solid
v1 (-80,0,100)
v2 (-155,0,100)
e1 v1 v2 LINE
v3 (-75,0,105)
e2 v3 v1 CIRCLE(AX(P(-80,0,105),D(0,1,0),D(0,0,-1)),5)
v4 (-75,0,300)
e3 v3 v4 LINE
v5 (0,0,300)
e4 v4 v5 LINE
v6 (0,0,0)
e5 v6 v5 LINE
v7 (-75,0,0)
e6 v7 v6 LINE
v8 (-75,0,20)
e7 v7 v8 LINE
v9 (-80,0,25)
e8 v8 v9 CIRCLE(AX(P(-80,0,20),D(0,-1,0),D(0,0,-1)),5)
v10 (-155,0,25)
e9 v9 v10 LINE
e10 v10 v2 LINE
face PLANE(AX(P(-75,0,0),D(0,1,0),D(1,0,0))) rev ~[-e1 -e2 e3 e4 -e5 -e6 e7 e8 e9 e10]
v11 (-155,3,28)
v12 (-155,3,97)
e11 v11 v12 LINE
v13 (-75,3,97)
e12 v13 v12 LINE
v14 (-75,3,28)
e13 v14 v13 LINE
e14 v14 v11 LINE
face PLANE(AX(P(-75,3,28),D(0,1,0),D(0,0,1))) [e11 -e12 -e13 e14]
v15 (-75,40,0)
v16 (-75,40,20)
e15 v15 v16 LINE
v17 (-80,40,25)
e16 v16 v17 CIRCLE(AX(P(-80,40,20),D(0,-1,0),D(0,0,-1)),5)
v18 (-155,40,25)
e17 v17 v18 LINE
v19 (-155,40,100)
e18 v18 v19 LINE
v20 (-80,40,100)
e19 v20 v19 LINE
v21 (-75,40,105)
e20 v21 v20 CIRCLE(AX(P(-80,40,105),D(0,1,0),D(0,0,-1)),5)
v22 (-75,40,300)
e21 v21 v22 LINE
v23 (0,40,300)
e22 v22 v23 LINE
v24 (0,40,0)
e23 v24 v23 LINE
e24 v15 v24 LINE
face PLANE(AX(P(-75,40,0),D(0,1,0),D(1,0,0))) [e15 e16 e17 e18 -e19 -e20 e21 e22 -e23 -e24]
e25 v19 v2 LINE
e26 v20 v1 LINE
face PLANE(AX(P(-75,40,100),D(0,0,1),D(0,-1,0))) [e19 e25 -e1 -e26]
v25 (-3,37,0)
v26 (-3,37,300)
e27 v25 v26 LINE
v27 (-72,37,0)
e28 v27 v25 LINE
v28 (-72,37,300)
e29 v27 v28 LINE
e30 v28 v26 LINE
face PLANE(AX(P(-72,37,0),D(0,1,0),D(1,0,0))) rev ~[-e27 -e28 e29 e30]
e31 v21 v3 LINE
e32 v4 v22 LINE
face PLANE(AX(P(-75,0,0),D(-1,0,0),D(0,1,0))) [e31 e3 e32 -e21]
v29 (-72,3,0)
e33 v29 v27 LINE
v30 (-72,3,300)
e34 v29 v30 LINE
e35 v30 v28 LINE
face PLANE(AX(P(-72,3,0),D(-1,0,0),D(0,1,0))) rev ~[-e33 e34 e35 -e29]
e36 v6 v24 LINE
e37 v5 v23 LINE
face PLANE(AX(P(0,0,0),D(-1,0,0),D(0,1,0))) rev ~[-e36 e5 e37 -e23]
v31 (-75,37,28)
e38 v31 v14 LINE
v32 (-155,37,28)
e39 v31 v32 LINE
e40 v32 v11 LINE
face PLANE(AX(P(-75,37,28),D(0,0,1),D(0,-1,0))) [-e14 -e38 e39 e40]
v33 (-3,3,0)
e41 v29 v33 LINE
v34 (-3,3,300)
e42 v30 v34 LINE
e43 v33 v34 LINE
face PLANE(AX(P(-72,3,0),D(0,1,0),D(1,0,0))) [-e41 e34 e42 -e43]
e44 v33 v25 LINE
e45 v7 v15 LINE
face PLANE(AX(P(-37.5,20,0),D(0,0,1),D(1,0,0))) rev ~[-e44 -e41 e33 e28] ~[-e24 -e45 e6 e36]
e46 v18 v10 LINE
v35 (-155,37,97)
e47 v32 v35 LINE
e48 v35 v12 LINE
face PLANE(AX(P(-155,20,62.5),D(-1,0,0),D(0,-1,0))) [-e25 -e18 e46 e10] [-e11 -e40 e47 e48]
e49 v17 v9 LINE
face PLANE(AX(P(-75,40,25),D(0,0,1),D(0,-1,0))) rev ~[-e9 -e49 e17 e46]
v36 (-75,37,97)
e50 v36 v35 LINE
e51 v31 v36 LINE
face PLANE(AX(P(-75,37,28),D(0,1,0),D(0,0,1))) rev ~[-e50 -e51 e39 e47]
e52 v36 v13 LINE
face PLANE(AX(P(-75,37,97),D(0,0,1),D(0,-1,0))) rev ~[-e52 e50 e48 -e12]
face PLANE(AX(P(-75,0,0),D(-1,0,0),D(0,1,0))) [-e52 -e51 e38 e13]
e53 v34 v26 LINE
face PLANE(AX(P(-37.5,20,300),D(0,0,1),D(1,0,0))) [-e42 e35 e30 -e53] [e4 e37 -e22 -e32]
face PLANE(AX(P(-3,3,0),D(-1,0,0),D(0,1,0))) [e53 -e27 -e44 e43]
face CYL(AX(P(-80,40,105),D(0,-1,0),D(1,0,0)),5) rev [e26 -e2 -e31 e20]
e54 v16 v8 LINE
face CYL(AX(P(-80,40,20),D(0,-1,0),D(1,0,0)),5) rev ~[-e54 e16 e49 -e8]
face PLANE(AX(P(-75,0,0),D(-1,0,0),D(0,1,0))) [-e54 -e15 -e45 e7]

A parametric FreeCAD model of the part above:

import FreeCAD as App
import Part
import Sketcher

V = App.Vector


def edges_at(feature, points):
    """Names of the edges that pass closest to the given points."""
    edges = feature.Shape.Edges
    near = lambda p: min(range(len(edges)), key=lambda i: edges[i].distToShape(Part.Vertex(*p))[0])
    return sorted({f"Edge{near(p) + 1}" for p in points})

doc = App.newDocument("Part")
body = doc.addObject("PartDesign::Body", "Body")

# Sketch on XY plane
sketch1 = body.newObject("Sketcher::SketchObject", "Sketch")
sketch1.AttachmentSupport = (doc.getObject("XY_Plane"), [""])
sketch1.MapMode = "FlatFace"
sketch1.addGeometry([
    Part.LineSegment(V(-75, 40, 0), V(-75, 0, 0)),  # 0
    Part.LineSegment(V(-75, 0, 0), V(0, 0, 0)),  # 1
    Part.LineSegment(V(0, 0, 0), V(0, 40, 0)),  # 2
    Part.LineSegment(V(0, 40, 0), V(-75, 40, 0)),  # 3
    Part.LineSegment(V(-3, 3, 0), V(-72, 3, 0)),  # 4
    Part.LineSegment(V(-72, 3, 0), V(-72, 37, 0)),  # 5
    Part.LineSegment(V(-72, 37, 0), V(-3, 37, 0)),  # 6
    Part.LineSegment(V(-3, 37, 0), V(-3, 3, 0)),  # 7
], False)
sketch1.addConstraint([
    Sketcher.Constraint("Coincident", 0, 2, 1, 1),
    Sketcher.Constraint("Coincident", 1, 2, 2, 1),
    Sketcher.Constraint("Coincident", 2, 2, 3, 1),
    Sketcher.Constraint("Coincident", 3, 2, 0, 1),
    Sketcher.Constraint("Coincident", 4, 2, 5, 1),
    Sketcher.Constraint("Coincident", 5, 2, 6, 1),
    Sketcher.Constraint("Coincident", 6, 2, 7, 1),
    Sketcher.Constraint("Coincident", 7, 2, 4, 1),
    Sketcher.Constraint("Vertical", 0),
    Sketcher.Constraint("Horizontal", 1),
    Sketcher.Constraint("Vertical", 2),
    Sketcher.Constraint("Horizontal", 3),
    Sketcher.Constraint("Horizontal", 4),
    Sketcher.Constraint("Vertical", 5),
    Sketcher.Constraint("Horizontal", 6),
    Sketcher.Constraint("Vertical", 7),
    Sketcher.Constraint("Coincident", 1, 2, -1, 1),
    Sketcher.Constraint("DistanceX", 1, 1, 1, 2, 75.0),
    Sketcher.Constraint("DistanceX", 4, 2, 4, 1, 69.0),
    Sketcher.Constraint("DistanceY", 0, 2, 0, 1, 40.0),
    Sketcher.Constraint("DistanceY", 5, 1, 5, 2, 34.0),
    Sketcher.Constraint("DistanceX", 4, 2, -1, 1, 72.0),
    Sketcher.Constraint("DistanceY", -1, 1, 4, 2, 3.0),
])
pad1 = body.newObject("PartDesign::Pad", "Pad")
pad1.Profile = sketch1
pad1.Length = 300

# Sketch on YZ plane
sketch2 = body.newObject("Sketcher::SketchObject", "Sketch001")
sketch2.AttachmentSupport = (doc.getObject("YZ_Plane"), [""])
sketch2.MapMode = "FlatFace"
sketch2.AttachmentOffset = App.Placement(V(0, 0, -75), App.Rotation())
sketch2.addGeometry([
    Part.LineSegment(V(40, 100, 0), V(40, 25, 0)),  # 0
    Part.LineSegment(V(40, 25, 0), V(0, 25, 0)),  # 1
    Part.LineSegment(V(0, 25, 0), V(0, 100, 0)),  # 2
    Part.LineSegment(V(0, 100, 0), V(40, 100, 0)),  # 3
    Part.LineSegment(V(3, 28, 0), V(37, 28, 0)),  # 4
    Part.LineSegment(V(37, 28, 0), V(37, 97, 0)),  # 5
    Part.LineSegment(V(37, 97, 0), V(3, 97, 0)),  # 6
    Part.LineSegment(V(3, 97, 0), V(3, 28, 0)),  # 7
], False)
sketch2.addConstraint([
    Sketcher.Constraint("Coincident", 0, 2, 1, 1),
    Sketcher.Constraint("Coincident", 1, 2, 2, 1),
    Sketcher.Constraint("Coincident", 2, 2, 3, 1),
    Sketcher.Constraint("Coincident", 3, 2, 0, 1),
    Sketcher.Constraint("Coincident", 4, 2, 5, 1),
    Sketcher.Constraint("Coincident", 5, 2, 6, 1),
    Sketcher.Constraint("Coincident", 6, 2, 7, 1),
    Sketcher.Constraint("Coincident", 7, 2, 4, 1),
    Sketcher.Constraint("Vertical", 0),
    Sketcher.Constraint("Horizontal", 1),
    Sketcher.Constraint("Vertical", 2),
    Sketcher.Constraint("Horizontal", 3),
    Sketcher.Constraint("Horizontal", 4),
    Sketcher.Constraint("Vertical", 5),
    Sketcher.Constraint("Horizontal", 6),
    Sketcher.Constraint("Vertical", 7),
    Sketcher.Constraint("PointOnObject", 1, 2, -2),
    Sketcher.Constraint("DistanceX", 1, 2, 1, 1, 40.0),
    Sketcher.Constraint("DistanceX", 4, 1, 4, 2, 34.0),
    Sketcher.Constraint("DistanceY", 0, 2, 0, 1, 75.0),
    Sketcher.Constraint("DistanceY", 5, 1, 5, 2, 69.0),
    Sketcher.Constraint("DistanceY", -1, 1, 0, 2, 25.0),
    Sketcher.Constraint("DistanceX", -1, 1, 4, 2, 37.0),
    Sketcher.Constraint("DistanceY", -1, 1, 4, 2, 28.0),
])
pad2 = body.newObject("PartDesign::Pad", "Pad001")
pad2.Profile = sketch2
pad2.Length = 80
pad2.Reversed = True
doc.recompute()

fillet = body.newObject("PartDesign::Fillet", "Fillet")
fillet.Base = (pad2, edges_at(pad2, [(-75, 20, 100), (-75, 20, 25)]))
fillet.Radius = 5

doc.recompute()
